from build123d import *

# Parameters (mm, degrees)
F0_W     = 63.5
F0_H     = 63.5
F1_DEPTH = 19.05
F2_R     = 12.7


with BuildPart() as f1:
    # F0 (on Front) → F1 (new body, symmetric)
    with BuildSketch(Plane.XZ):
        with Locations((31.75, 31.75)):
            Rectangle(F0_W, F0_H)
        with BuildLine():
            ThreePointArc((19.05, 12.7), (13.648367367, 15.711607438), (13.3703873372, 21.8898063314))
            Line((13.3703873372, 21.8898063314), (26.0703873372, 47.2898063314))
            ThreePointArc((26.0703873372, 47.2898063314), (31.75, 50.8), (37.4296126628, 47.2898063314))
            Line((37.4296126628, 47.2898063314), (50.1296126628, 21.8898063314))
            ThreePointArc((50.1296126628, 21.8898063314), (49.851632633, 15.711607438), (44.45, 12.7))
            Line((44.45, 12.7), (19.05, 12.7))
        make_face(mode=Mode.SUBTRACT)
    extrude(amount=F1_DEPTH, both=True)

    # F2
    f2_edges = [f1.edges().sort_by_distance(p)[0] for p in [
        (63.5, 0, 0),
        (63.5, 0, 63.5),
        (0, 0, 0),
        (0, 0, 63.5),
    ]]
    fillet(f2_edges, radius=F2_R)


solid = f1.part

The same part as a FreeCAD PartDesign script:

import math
import FreeCAD as App
import Part
import Sketcher
from FreeCAD import Vector
Q = App.Units.Quantity


def edges_at(feature, points):
    """Names of the edges that pass closest to the given points."""
    edges = feature.Shape.Edges
    near = lambda p: min(range(len(edges)), key=lambda i: edges[i].distToShape(Part.Vertex(*p))[0])
    return sorted({f"Edge{near(p) + 1}" for p in points})


def add_polygon(sketch, points):
    """Adds a closed chain of lines whose ends are joined by coincident constraints."""
    first, n = sketch.GeometryCount, len(points)
    for a, b in zip(points, points[1:] + points[:1]):
        sketch.addGeometry(Part.LineSegment(App.Vector(*a, 0), App.Vector(*b, 0)), False)
    for i in range(n):
        sketch.addConstraint(Sketcher.Constraint("Coincident", first + i, 2, first + (i + 1) % n, 1))

doc = App.newDocument("Part")
params = doc.addObject("Spreadsheet::Sheet", "Params")
for row, (alias, value) in enumerate([
    ("sketch1_width", "1 in"),
    ("sketch1_radius", "0.25 in"),
    ("sketch1_width2", "2.5 in"),
    ("pad1_length", "1.5 in"),
    ("fillet_radius", "0.5 in"),
], start=1):
    params.set(f"A{row}", alias)
    params.set(f"B{row}", "=" + value)
    params.setAlias(f"B{row}", alias)

body = doc.addObject("PartDesign::Body", "Body")

# Sketch on XZ plane
sketch1 = body.newObject("Sketcher::SketchObject", "Sketch")
sketch1.AttachmentSupport = (doc.getObject("XZ_Plane"), [""])
sketch1.MapMode = "FlatFace"
add_polygon(sketch1, [(0, 64), (0, 0), (64, 0), (64, 64)])  # lines 0-3
sketch1.addGeometry(Part.LineSegment(Vector(44, 13, 0), Vector(19, 13, 0)), False)  # 4
sketch1.addGeometry(Part.ArcOfCircle(Part.Circle(Vector(19, 19, 0), Vector(0, 0, 1), 6), math.radians(153), math.radians(270)), False)  # 5
sketch1.addGeometry(Part.LineSegment(Vector(13, 22, 0), Vector(26, 47, 0)), False)  # 6
sketch1.addGeometry(Part.ArcOfCircle(Part.Circle(Vector(32, 44, 0), Vector(0, 0, 1), 6), math.radians(27), math.radians(153)), False)  # 7
sketch1.addGeometry(Part.LineSegment(Vector(37, 47, 0), Vector(50, 22, 0)), False)  # 8
sketch1.addGeometry(Part.ArcOfCircle(Part.Circle(Vector(44, 19, 0), Vector(0, 0, 1), 6), math.radians(-90), math.radians(27)), False)  # 9
sketch1.addConstraint([
    Sketcher.Constraint("Tangent", 4, 2, 5, 2),
    Sketcher.Constraint("Tangent", 5, 1, 6, 1),
    Sketcher.Constraint("Tangent", 6, 2, 7, 2),
    Sketcher.Constraint("Tangent", 7, 1, 8, 1),
    Sketcher.Constraint("Tangent", 8, 2, 9, 2),
    Sketcher.Constraint("Tangent", 9, 1, 4, 1),
    Sketcher.Constraint("Vertical", 0),
    Sketcher.Constraint("Horizontal", 1),
    Sketcher.Constraint("Vertical", 2),
    Sketcher.Constraint("Horizontal", 3),
    Sketcher.Constraint("Horizontal", 4),
    Sketcher.Constraint("Coincident", 0, 2, -1, 1),
    Sketcher.Constraint("Equal", 5, 7),
    Sketcher.Constraint("Equal", 7, 9),
    Sketcher.Constraint("Horizontal", 6, 2, 7, 1),
    Sketcher.Constraint("Equal", 3, 0),
    Sketcher.Constraint("DistanceX", 4, 2, 4, 1, Q("1 in")),
    Sketcher.Constraint("Radius", 5, Q("0.25 in")),
    Sketcher.Constraint("DistanceX", 1, 1, 1, 2, Q("2.5 in")),
    Sketcher.Constraint("DistanceY", 5, 3, 7, 3, Q("1 in")),
    Sketcher.Constraint("DistanceY", -1, 1, 4, 2, Q("0.5 in")),
    Sketcher.Constraint("DistanceX", -1, 1, 5, 3, Q("0.75 in")),
])
sketch1.setExpression("Constraints[20]", "Params.sketch1_width")
sketch1.setExpression("Constraints[21]", "Params.sketch1_radius")
sketch1.setExpression("Constraints[22]", "Params.sketch1_width2")
pad1 = body.newObject("PartDesign::Pad", "Pad")
pad1.Profile = sketch1
pad1.setExpression("Length", "Params.pad1_length")
pad1.Midplane = True
doc.recompute()

fillet = body.newObject("PartDesign::Fillet", "Fillet")
fillet.Base = (pad1, edges_at(pad1, [
    (63.5, 0, 0),
    (63.5, 0, 63.5),
    (0, 0, 0),
    (0, 0, 63.5),
]))
fillet.setExpression("Radius", "Params.fillet_radius")

doc.recompute()
